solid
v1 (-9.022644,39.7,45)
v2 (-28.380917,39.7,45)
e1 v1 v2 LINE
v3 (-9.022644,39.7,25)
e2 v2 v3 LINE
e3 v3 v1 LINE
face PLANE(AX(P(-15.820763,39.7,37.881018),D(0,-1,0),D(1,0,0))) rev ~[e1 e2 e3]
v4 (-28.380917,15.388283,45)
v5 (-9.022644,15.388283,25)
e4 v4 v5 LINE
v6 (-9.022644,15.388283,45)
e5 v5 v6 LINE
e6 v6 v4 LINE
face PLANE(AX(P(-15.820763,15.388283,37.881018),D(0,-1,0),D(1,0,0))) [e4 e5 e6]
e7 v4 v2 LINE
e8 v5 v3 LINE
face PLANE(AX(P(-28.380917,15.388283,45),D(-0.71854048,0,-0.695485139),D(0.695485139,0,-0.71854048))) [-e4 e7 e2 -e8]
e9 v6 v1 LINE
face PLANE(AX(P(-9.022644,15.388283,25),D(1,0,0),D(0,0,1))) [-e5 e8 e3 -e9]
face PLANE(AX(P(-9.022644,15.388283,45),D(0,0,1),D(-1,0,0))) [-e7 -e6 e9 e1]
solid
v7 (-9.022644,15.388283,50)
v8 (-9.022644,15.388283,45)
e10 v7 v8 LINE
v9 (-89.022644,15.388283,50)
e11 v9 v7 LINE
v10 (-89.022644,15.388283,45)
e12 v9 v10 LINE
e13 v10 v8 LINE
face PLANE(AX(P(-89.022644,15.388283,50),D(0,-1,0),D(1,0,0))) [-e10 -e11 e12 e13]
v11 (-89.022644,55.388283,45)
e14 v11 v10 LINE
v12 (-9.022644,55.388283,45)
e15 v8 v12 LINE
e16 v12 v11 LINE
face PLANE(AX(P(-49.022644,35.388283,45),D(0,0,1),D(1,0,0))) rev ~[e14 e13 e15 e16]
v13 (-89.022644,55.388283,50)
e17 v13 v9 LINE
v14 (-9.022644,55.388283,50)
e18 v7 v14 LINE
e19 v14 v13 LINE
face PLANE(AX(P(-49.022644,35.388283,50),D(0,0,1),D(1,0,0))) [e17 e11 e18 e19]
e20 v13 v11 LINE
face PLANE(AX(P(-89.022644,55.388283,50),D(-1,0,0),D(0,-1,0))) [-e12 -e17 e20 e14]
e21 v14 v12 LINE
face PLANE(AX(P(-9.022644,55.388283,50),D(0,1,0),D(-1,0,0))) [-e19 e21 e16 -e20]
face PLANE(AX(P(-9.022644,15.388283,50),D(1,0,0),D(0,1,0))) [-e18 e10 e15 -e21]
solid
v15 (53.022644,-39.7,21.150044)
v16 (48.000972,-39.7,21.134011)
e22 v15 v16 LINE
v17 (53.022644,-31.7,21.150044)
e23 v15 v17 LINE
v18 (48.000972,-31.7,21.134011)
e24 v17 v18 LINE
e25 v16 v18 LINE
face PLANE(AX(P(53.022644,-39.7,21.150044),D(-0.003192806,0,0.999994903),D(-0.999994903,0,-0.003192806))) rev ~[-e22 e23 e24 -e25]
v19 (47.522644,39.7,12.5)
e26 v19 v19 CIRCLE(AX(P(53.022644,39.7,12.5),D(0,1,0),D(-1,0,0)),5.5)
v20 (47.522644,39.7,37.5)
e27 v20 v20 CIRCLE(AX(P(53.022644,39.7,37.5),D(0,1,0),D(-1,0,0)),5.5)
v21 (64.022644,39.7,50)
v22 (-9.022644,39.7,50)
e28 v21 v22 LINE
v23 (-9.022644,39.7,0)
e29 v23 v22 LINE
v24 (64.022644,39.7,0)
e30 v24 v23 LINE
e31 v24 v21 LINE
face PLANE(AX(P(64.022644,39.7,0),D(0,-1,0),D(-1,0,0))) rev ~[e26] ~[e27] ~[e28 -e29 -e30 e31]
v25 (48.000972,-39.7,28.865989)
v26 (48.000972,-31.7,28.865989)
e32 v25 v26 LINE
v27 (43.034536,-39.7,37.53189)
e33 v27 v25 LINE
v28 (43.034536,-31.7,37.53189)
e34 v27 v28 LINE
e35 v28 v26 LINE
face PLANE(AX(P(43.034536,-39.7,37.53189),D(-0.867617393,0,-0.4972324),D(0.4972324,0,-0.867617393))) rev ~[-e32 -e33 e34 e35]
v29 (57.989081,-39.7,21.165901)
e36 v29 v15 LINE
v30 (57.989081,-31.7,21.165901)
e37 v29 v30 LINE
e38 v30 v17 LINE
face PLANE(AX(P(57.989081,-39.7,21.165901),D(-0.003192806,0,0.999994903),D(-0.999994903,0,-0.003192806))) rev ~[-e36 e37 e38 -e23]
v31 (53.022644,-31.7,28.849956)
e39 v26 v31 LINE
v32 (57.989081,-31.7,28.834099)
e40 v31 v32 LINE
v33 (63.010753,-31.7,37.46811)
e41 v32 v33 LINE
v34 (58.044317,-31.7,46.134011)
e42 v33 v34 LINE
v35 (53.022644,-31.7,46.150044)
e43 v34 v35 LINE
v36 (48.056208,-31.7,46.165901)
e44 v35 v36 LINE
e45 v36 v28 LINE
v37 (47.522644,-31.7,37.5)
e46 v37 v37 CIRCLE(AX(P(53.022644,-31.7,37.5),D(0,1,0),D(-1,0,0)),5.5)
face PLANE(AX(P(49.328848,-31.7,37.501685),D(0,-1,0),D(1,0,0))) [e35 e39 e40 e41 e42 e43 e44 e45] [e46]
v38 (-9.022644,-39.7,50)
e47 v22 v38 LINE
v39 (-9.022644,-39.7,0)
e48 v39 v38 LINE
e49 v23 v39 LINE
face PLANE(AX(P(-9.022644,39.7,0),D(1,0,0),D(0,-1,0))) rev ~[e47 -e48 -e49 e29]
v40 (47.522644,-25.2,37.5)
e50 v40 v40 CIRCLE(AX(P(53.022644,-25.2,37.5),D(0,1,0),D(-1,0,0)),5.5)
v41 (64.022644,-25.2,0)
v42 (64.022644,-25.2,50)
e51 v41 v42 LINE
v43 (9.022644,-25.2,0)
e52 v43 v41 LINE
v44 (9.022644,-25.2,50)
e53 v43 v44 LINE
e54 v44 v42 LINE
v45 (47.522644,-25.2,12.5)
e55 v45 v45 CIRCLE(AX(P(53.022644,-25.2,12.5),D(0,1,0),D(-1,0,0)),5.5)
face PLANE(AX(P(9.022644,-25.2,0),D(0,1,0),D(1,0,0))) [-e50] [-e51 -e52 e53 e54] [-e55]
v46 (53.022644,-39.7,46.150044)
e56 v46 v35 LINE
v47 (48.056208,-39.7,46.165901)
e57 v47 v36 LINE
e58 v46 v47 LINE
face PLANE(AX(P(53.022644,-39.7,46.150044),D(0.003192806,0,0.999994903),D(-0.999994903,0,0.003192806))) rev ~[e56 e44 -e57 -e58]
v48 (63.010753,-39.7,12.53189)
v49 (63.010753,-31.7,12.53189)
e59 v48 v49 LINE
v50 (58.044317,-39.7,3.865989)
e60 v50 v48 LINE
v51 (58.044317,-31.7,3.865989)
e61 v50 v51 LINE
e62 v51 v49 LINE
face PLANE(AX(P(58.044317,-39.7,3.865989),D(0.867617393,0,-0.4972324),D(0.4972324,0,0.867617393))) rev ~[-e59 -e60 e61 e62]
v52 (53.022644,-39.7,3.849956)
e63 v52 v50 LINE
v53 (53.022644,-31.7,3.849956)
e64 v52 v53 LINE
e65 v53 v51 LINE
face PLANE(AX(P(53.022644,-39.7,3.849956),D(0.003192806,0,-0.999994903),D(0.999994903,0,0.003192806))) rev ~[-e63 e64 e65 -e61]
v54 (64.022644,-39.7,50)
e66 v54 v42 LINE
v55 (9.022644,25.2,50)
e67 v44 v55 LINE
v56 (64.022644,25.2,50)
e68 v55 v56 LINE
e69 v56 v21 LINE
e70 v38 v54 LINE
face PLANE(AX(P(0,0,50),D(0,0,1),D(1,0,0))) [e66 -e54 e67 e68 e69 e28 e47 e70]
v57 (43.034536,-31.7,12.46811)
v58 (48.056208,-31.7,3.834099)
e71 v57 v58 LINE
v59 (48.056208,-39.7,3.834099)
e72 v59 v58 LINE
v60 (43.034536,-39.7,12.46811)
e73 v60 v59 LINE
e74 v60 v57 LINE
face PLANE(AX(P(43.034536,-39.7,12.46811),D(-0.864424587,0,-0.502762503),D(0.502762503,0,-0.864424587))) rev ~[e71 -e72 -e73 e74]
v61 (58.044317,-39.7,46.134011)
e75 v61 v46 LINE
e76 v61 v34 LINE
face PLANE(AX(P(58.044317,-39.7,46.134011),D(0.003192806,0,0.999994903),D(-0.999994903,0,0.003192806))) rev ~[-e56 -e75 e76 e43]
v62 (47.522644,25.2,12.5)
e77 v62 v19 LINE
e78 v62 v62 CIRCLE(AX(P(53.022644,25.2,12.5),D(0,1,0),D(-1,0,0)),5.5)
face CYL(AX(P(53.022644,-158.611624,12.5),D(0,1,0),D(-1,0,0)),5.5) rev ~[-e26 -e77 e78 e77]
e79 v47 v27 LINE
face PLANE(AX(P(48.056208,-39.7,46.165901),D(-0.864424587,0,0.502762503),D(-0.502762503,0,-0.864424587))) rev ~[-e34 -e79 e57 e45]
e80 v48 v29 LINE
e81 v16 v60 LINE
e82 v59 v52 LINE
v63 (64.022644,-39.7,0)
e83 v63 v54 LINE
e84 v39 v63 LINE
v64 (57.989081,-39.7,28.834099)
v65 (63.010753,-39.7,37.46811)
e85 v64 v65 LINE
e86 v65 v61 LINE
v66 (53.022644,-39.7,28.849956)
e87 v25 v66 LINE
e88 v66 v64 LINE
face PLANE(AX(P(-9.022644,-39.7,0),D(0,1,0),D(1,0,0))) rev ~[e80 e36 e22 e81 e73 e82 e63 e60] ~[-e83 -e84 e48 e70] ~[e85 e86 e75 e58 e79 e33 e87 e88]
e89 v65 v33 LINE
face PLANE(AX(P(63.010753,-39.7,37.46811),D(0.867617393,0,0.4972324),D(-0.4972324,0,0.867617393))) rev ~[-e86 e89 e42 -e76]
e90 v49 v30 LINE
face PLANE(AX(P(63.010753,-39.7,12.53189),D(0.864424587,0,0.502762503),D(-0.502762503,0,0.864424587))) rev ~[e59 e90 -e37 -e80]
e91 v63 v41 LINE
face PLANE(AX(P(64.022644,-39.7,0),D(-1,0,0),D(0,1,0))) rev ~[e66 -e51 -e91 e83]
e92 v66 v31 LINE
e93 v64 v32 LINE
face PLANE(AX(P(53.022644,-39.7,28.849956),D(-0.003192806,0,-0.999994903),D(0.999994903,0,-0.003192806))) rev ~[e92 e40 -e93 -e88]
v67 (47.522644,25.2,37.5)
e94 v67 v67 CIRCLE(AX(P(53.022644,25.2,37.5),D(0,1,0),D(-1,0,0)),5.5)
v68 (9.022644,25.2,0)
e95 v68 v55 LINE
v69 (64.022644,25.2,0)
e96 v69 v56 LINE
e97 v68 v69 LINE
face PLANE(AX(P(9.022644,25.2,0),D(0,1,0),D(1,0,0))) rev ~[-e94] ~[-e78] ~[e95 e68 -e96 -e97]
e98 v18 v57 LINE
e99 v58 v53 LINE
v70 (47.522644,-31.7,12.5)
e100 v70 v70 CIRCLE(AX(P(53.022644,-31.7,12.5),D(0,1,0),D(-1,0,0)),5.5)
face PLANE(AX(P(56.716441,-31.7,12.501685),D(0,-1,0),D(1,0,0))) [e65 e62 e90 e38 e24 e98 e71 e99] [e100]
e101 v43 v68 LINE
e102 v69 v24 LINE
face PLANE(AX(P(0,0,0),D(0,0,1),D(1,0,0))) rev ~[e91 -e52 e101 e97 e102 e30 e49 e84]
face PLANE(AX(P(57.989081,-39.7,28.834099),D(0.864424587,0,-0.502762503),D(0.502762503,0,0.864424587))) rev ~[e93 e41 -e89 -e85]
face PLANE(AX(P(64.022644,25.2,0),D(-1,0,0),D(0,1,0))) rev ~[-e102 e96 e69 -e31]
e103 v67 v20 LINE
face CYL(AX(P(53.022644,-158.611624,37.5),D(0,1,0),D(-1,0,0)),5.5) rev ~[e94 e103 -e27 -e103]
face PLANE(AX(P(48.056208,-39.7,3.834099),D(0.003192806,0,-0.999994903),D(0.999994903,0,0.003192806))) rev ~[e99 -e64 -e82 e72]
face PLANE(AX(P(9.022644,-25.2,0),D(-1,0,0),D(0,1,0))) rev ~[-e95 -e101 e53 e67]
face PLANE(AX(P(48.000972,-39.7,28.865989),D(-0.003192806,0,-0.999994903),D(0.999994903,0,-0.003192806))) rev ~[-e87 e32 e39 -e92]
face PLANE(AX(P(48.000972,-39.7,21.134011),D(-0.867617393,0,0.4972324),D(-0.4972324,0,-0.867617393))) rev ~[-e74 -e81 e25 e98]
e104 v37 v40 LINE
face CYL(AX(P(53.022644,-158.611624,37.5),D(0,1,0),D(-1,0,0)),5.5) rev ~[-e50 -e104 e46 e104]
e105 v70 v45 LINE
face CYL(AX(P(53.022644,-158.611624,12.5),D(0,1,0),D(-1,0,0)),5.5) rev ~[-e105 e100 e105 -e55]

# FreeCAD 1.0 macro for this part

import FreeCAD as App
import Part
import Sketcher

V = App.Vector


def add_polygon(sketch, points):
    """Adds a closed chain of lines whose ends are joined by coincident constraints."""
    first, n = sketch.GeometryCount, len(points)
    for a, b in zip(points, points[1:] + points[:1]):
        sketch.addGeometry(Part.LineSegment(App.Vector(*a, 0), App.Vector(*b, 0)), False)
    for i in range(n):
        sketch.addConstraint(Sketcher.Constraint("Coincident", first + i, 2, first + (i + 1) % n, 1))

doc = App.newDocument("Part")
params = doc.addObject("Spreadsheet::Sheet", "Params")
for row, (alias, value) in enumerate([
    ("sketch1_width", "55 mm"),
    ("sketch1_height", "79.4 mm"),
    ("sketch1_height2", "14.5 mm"),
    ("pad1_length", "50 mm"),
    ("sketch2_diameter", "11 mm"),
    ("hole_diameter", "11 mm"),
    ("pocket1_length", "8 mm"),
    ("sketch4_width", "80 mm"),
    ("sketch4_height", "40 mm"),
    ("pad2_length", "5 mm"),
    ("sketch5_height", "20 mm"),
    ("pad3_length", "24.311717 mm"),
], start=1):
    params.set(f"A{row}", alias)
    params.set(f"B{row}", "=" + value)
    params.setAlias(f"B{row}", alias)

body = doc.addObject("PartDesign::Body", "Body")

sketch1 = body.newObject("Sketcher::SketchObject", "Sketch")
sketch1.AttachmentSupport = (doc.getObject("XY_Plane"), [""])
sketch1.MapMode = "FlatFace"
add_polygon(sketch1, [(-9, 40), (-9, -40), (64, -40), (64, -25), (9, -25), (9, 25), (64, 25), (64, 40)])
sketch1.addConstraint([
    Sketcher.Constraint("Vertical", 0),
    Sketcher.Constraint("Horizontal", 1),
    Sketcher.Constraint("Vertical", 2),
    Sketcher.Constraint("Horizontal", 3),
    Sketcher.Constraint("Vertical", 4),
    Sketcher.Constraint("Horizontal", 5),
    Sketcher.Constraint("Vertical", 6),
    Sketcher.Constraint("Horizontal", 7),
    Sketcher.Constraint("Symmetric", 2, 2, 5, 2, -1),
    Sketcher.Constraint("Equal", 2, 6),
    Sketcher.Constraint("DistanceX", 3, 2, 3, 1, 55.0),
    Sketcher.Constraint("DistanceY", 0, 2, 0, 1, 79.4),
    Sketcher.Constraint("DistanceY", 2, 1, 2, 2, 14.5),
    Sketcher.Constraint("DistanceX", 1, 1, 1, 2, 73.045289),
    Sketcher.Constraint("DistanceX", 0, 2, -1, 1, 9.022644),
])
sketch1.setExpression("Constraints[18]", "Params.sketch1_width")
sketch1.setExpression("Constraints[19]", "Params.sketch1_height")
sketch1.setExpression("Constraints[20]", "Params.sketch1_height2")
pad1 = body.newObject("PartDesign::Pad", "Pad")
pad1.Profile = sketch1
pad1.setExpression("Length", "Params.pad1_length")

sketch2 = body.newObject("Sketcher::SketchObject", "Sketch001")
sketch2.AttachmentSupport = (doc.getObject("XZ_Plane"), [""])
sketch2.MapMode = "FlatFace"
sketch2.AttachmentOffset = App.Placement(V(0, 0, 39.7), App.Rotation())
sketch2.addGeometry([
    Part.Circle(V(53, 38, 0), V(0, 0, 1), 6),
    Part.Circle(V(53, 12, 0), V(0, 0, 1), 6),
], False)
sketch2.addConstraint([
    Sketcher.Constraint("Equal", 0, 1),
    Sketcher.Constraint("Vertical", 0, 3, 1, 3),
    Sketcher.Constraint("Diameter", 0, 11.0),
    Sketcher.Constraint("DistanceY", 1, 3, 0, 3, 25.0),
    Sketcher.Constraint("DistanceY", -1, 1, 0, 3, 37.5),
    Sketcher.Constraint("DistanceX", -1, 1, 0, 3, 53.022644),
])
sketch2.setExpression("Constraints[2]", "Params.sketch2_diameter")
doc.recompute()
hole = body.newObject("PartDesign::Hole", "Hole")
hole.Profile = sketch2
hole.ThreadType = "None"
hole.setExpression("Diameter", "Params.hole_diameter")
hole.DepthType = "ThroughAll"

sketch3 = body.newObject("Sketcher::SketchObject", "Sketch002")
sketch3.AttachmentSupport = (doc.getObject("XZ_Plane"), [""])
sketch3.MapMode = "FlatFace"
sketch3.AttachmentOffset = App.Placement(V(0, 0, 39.7), App.Rotation())
add_polygon(sketch3, [(48, 28.9), (53, 28.8), (58, 28.8), (63, 37.5), (58, 46.1), (53, 46.2), (48.1, 46.2), (43, 37.5)])
add_polygon(sketch3, [(58, 21.2), (53, 21.2), (48, 21.1), (43, 12.5), (48.1, 3.8), (53, 3.8), (58, 3.9), (63, 12.5)])
sketch3.addConstraint([
    Sketcher.Constraint("Parallel", 0, 1),
    Sketcher.Constraint("Parallel", 1, 4),
    Sketcher.Constraint("Parallel", 4, 5),
    Sketcher.Constraint("Parallel", 2, 6),
    Sketcher.Constraint("Parallel", 3, 7),
    Sketcher.Constraint("Parallel", 8, 9),
    Sketcher.Constraint("Parallel", 9, 12),
    Sketcher.Constraint("Parallel", 12, 13),
    Sketcher.Constraint("Parallel", 10, 14),
    Sketcher.Constraint("Parallel", 11, 15),
    Sketcher.Constraint("Vertical", 0, 2, 4, 2),
    Sketcher.Constraint("Vertical", 4, 2, 8, 2),
    Sketcher.Constraint("Vertical", 7, 2, 9, 2),
    Sketcher.Constraint("Vertical", 6, 2, 10, 2),
    Sketcher.Constraint("Vertical", 5, 2, 11, 2),
    Sketcher.Constraint("Vertical", 8, 2, 12, 2),
    Sketcher.Constraint("Vertical", 3, 2, 13, 2),
    Sketcher.Constraint("Vertical", 2, 2, 14, 2),
    Sketcher.Constraint("Equal", 2, 3),
    Sketcher.Constraint("Equal", 0, 4),
    Sketcher.Constraint("Equal", 1, 5),
    Sketcher.Constraint("Equal", 7, 10),
    Sketcher.Constraint("Equal", 10, 11),
    Sketcher.Constraint("DistanceY", 12, 2, 0, 2, 25.0),
    Sketcher.Constraint("DistanceY", -1, 1, 1, 2, 28.834099),
    Sketcher.Constraint("DistanceY", -1, 1, 5, 2, 46.165901),
    Sketcher.Constraint("DistanceY", -1, 1, 11, 2, 3.834099),
    Sketcher.Constraint("DistanceY", 2, 2, 3, 2, 8.665901),
    Sketcher.Constraint("Distance", 1, 4.966462),
    Sketcher.Constraint("Distance", 2, 9.98816),
    Sketcher.Constraint("DistanceX", -1, 1, 1, 2, 57.989081),
    Sketcher.Constraint("DistanceY", -1, 1, 2, 2, 37.46811),
])
pocket1 = body.newObject("PartDesign::Pocket", "Pocket")
pocket1.Profile = sketch3
pocket1.setExpression("Length", "Params.pocket1_length")
body2 = doc.addObject("PartDesign::Body", "Body001")

sketch4 = body2.newObject("Sketcher::SketchObject", "Sketch003")
sketch4.AttachmentSupport = (doc.getObject("XY_Plane001"), [""])
sketch4.MapMode = "FlatFace"
sketch4.AttachmentOffset = App.Placement(V(0, 0, 50), App.Rotation())
add_polygon(sketch4, [(-89, 15), (-9, 15), (-9, 55), (-89, 55)])
sketch4.addConstraint([
    Sketcher.Constraint("Horizontal", 0),
    Sketcher.Constraint("Vertical", 1),
    Sketcher.Constraint("Horizontal", 2),
    Sketcher.Constraint("Vertical", 3),
    Sketcher.Constraint("DistanceX", 0, 1, 0, 2, 80.0),
    Sketcher.Constraint("DistanceY", 1, 1, 1, 2, 40.0),
    Sketcher.Constraint("DistanceX", 0, 2, -1, 1, 9.022644),
    Sketcher.Constraint("DistanceY", -1, 1, 0, 2, 15.388283),
])
sketch4.setExpression("Constraints[8]", "Params.sketch4_width")
sketch4.setExpression("Constraints[9]", "Params.sketch4_height")
pad2 = body2.newObject("PartDesign::Pad", "Pad001")
pad2.Profile = sketch4
pad2.setExpression("Length", "Params.pad2_length")
pad2.Reversed = True
body3 = doc.addObject("PartDesign::Body", "Body002")

sketch5 = body3.newObject("Sketcher::SketchObject", "Sketch004")
sketch5.AttachmentSupport = (doc.getObject("XZ_Plane002"), [""])
sketch5.MapMode = "FlatFace"
sketch5.AttachmentOffset = App.Placement(V(0, 0, -15.388283), App.Rotation())
add_polygon(sketch5, [(-9, 25), (-9, 45), (-28, 45)])
sketch5.addConstraint([
    Sketcher.Constraint("Vertical", 0),
    Sketcher.Constraint("Horizontal", 1),
    Sketcher.Constraint("DistanceY", 0, 1, 0, 2, 20.0),
    Sketcher.Constraint("DistanceY", -1, 1, 0, 2, 45.0),
    Sketcher.Constraint("Distance", 2, 27.834201),
    Sketcher.Constraint("DistanceX", 0, 2, -1, 1, 9.022644),
])
sketch5.setExpression("Constraints[5]", "Params.sketch5_height")
pad3 = body3.newObject("PartDesign::Pad", "Pad002")
pad3.Profile = sketch5
pad3.setExpression("Length", "Params.pad3_length")
pad3.Reversed = True

doc.recompute()
